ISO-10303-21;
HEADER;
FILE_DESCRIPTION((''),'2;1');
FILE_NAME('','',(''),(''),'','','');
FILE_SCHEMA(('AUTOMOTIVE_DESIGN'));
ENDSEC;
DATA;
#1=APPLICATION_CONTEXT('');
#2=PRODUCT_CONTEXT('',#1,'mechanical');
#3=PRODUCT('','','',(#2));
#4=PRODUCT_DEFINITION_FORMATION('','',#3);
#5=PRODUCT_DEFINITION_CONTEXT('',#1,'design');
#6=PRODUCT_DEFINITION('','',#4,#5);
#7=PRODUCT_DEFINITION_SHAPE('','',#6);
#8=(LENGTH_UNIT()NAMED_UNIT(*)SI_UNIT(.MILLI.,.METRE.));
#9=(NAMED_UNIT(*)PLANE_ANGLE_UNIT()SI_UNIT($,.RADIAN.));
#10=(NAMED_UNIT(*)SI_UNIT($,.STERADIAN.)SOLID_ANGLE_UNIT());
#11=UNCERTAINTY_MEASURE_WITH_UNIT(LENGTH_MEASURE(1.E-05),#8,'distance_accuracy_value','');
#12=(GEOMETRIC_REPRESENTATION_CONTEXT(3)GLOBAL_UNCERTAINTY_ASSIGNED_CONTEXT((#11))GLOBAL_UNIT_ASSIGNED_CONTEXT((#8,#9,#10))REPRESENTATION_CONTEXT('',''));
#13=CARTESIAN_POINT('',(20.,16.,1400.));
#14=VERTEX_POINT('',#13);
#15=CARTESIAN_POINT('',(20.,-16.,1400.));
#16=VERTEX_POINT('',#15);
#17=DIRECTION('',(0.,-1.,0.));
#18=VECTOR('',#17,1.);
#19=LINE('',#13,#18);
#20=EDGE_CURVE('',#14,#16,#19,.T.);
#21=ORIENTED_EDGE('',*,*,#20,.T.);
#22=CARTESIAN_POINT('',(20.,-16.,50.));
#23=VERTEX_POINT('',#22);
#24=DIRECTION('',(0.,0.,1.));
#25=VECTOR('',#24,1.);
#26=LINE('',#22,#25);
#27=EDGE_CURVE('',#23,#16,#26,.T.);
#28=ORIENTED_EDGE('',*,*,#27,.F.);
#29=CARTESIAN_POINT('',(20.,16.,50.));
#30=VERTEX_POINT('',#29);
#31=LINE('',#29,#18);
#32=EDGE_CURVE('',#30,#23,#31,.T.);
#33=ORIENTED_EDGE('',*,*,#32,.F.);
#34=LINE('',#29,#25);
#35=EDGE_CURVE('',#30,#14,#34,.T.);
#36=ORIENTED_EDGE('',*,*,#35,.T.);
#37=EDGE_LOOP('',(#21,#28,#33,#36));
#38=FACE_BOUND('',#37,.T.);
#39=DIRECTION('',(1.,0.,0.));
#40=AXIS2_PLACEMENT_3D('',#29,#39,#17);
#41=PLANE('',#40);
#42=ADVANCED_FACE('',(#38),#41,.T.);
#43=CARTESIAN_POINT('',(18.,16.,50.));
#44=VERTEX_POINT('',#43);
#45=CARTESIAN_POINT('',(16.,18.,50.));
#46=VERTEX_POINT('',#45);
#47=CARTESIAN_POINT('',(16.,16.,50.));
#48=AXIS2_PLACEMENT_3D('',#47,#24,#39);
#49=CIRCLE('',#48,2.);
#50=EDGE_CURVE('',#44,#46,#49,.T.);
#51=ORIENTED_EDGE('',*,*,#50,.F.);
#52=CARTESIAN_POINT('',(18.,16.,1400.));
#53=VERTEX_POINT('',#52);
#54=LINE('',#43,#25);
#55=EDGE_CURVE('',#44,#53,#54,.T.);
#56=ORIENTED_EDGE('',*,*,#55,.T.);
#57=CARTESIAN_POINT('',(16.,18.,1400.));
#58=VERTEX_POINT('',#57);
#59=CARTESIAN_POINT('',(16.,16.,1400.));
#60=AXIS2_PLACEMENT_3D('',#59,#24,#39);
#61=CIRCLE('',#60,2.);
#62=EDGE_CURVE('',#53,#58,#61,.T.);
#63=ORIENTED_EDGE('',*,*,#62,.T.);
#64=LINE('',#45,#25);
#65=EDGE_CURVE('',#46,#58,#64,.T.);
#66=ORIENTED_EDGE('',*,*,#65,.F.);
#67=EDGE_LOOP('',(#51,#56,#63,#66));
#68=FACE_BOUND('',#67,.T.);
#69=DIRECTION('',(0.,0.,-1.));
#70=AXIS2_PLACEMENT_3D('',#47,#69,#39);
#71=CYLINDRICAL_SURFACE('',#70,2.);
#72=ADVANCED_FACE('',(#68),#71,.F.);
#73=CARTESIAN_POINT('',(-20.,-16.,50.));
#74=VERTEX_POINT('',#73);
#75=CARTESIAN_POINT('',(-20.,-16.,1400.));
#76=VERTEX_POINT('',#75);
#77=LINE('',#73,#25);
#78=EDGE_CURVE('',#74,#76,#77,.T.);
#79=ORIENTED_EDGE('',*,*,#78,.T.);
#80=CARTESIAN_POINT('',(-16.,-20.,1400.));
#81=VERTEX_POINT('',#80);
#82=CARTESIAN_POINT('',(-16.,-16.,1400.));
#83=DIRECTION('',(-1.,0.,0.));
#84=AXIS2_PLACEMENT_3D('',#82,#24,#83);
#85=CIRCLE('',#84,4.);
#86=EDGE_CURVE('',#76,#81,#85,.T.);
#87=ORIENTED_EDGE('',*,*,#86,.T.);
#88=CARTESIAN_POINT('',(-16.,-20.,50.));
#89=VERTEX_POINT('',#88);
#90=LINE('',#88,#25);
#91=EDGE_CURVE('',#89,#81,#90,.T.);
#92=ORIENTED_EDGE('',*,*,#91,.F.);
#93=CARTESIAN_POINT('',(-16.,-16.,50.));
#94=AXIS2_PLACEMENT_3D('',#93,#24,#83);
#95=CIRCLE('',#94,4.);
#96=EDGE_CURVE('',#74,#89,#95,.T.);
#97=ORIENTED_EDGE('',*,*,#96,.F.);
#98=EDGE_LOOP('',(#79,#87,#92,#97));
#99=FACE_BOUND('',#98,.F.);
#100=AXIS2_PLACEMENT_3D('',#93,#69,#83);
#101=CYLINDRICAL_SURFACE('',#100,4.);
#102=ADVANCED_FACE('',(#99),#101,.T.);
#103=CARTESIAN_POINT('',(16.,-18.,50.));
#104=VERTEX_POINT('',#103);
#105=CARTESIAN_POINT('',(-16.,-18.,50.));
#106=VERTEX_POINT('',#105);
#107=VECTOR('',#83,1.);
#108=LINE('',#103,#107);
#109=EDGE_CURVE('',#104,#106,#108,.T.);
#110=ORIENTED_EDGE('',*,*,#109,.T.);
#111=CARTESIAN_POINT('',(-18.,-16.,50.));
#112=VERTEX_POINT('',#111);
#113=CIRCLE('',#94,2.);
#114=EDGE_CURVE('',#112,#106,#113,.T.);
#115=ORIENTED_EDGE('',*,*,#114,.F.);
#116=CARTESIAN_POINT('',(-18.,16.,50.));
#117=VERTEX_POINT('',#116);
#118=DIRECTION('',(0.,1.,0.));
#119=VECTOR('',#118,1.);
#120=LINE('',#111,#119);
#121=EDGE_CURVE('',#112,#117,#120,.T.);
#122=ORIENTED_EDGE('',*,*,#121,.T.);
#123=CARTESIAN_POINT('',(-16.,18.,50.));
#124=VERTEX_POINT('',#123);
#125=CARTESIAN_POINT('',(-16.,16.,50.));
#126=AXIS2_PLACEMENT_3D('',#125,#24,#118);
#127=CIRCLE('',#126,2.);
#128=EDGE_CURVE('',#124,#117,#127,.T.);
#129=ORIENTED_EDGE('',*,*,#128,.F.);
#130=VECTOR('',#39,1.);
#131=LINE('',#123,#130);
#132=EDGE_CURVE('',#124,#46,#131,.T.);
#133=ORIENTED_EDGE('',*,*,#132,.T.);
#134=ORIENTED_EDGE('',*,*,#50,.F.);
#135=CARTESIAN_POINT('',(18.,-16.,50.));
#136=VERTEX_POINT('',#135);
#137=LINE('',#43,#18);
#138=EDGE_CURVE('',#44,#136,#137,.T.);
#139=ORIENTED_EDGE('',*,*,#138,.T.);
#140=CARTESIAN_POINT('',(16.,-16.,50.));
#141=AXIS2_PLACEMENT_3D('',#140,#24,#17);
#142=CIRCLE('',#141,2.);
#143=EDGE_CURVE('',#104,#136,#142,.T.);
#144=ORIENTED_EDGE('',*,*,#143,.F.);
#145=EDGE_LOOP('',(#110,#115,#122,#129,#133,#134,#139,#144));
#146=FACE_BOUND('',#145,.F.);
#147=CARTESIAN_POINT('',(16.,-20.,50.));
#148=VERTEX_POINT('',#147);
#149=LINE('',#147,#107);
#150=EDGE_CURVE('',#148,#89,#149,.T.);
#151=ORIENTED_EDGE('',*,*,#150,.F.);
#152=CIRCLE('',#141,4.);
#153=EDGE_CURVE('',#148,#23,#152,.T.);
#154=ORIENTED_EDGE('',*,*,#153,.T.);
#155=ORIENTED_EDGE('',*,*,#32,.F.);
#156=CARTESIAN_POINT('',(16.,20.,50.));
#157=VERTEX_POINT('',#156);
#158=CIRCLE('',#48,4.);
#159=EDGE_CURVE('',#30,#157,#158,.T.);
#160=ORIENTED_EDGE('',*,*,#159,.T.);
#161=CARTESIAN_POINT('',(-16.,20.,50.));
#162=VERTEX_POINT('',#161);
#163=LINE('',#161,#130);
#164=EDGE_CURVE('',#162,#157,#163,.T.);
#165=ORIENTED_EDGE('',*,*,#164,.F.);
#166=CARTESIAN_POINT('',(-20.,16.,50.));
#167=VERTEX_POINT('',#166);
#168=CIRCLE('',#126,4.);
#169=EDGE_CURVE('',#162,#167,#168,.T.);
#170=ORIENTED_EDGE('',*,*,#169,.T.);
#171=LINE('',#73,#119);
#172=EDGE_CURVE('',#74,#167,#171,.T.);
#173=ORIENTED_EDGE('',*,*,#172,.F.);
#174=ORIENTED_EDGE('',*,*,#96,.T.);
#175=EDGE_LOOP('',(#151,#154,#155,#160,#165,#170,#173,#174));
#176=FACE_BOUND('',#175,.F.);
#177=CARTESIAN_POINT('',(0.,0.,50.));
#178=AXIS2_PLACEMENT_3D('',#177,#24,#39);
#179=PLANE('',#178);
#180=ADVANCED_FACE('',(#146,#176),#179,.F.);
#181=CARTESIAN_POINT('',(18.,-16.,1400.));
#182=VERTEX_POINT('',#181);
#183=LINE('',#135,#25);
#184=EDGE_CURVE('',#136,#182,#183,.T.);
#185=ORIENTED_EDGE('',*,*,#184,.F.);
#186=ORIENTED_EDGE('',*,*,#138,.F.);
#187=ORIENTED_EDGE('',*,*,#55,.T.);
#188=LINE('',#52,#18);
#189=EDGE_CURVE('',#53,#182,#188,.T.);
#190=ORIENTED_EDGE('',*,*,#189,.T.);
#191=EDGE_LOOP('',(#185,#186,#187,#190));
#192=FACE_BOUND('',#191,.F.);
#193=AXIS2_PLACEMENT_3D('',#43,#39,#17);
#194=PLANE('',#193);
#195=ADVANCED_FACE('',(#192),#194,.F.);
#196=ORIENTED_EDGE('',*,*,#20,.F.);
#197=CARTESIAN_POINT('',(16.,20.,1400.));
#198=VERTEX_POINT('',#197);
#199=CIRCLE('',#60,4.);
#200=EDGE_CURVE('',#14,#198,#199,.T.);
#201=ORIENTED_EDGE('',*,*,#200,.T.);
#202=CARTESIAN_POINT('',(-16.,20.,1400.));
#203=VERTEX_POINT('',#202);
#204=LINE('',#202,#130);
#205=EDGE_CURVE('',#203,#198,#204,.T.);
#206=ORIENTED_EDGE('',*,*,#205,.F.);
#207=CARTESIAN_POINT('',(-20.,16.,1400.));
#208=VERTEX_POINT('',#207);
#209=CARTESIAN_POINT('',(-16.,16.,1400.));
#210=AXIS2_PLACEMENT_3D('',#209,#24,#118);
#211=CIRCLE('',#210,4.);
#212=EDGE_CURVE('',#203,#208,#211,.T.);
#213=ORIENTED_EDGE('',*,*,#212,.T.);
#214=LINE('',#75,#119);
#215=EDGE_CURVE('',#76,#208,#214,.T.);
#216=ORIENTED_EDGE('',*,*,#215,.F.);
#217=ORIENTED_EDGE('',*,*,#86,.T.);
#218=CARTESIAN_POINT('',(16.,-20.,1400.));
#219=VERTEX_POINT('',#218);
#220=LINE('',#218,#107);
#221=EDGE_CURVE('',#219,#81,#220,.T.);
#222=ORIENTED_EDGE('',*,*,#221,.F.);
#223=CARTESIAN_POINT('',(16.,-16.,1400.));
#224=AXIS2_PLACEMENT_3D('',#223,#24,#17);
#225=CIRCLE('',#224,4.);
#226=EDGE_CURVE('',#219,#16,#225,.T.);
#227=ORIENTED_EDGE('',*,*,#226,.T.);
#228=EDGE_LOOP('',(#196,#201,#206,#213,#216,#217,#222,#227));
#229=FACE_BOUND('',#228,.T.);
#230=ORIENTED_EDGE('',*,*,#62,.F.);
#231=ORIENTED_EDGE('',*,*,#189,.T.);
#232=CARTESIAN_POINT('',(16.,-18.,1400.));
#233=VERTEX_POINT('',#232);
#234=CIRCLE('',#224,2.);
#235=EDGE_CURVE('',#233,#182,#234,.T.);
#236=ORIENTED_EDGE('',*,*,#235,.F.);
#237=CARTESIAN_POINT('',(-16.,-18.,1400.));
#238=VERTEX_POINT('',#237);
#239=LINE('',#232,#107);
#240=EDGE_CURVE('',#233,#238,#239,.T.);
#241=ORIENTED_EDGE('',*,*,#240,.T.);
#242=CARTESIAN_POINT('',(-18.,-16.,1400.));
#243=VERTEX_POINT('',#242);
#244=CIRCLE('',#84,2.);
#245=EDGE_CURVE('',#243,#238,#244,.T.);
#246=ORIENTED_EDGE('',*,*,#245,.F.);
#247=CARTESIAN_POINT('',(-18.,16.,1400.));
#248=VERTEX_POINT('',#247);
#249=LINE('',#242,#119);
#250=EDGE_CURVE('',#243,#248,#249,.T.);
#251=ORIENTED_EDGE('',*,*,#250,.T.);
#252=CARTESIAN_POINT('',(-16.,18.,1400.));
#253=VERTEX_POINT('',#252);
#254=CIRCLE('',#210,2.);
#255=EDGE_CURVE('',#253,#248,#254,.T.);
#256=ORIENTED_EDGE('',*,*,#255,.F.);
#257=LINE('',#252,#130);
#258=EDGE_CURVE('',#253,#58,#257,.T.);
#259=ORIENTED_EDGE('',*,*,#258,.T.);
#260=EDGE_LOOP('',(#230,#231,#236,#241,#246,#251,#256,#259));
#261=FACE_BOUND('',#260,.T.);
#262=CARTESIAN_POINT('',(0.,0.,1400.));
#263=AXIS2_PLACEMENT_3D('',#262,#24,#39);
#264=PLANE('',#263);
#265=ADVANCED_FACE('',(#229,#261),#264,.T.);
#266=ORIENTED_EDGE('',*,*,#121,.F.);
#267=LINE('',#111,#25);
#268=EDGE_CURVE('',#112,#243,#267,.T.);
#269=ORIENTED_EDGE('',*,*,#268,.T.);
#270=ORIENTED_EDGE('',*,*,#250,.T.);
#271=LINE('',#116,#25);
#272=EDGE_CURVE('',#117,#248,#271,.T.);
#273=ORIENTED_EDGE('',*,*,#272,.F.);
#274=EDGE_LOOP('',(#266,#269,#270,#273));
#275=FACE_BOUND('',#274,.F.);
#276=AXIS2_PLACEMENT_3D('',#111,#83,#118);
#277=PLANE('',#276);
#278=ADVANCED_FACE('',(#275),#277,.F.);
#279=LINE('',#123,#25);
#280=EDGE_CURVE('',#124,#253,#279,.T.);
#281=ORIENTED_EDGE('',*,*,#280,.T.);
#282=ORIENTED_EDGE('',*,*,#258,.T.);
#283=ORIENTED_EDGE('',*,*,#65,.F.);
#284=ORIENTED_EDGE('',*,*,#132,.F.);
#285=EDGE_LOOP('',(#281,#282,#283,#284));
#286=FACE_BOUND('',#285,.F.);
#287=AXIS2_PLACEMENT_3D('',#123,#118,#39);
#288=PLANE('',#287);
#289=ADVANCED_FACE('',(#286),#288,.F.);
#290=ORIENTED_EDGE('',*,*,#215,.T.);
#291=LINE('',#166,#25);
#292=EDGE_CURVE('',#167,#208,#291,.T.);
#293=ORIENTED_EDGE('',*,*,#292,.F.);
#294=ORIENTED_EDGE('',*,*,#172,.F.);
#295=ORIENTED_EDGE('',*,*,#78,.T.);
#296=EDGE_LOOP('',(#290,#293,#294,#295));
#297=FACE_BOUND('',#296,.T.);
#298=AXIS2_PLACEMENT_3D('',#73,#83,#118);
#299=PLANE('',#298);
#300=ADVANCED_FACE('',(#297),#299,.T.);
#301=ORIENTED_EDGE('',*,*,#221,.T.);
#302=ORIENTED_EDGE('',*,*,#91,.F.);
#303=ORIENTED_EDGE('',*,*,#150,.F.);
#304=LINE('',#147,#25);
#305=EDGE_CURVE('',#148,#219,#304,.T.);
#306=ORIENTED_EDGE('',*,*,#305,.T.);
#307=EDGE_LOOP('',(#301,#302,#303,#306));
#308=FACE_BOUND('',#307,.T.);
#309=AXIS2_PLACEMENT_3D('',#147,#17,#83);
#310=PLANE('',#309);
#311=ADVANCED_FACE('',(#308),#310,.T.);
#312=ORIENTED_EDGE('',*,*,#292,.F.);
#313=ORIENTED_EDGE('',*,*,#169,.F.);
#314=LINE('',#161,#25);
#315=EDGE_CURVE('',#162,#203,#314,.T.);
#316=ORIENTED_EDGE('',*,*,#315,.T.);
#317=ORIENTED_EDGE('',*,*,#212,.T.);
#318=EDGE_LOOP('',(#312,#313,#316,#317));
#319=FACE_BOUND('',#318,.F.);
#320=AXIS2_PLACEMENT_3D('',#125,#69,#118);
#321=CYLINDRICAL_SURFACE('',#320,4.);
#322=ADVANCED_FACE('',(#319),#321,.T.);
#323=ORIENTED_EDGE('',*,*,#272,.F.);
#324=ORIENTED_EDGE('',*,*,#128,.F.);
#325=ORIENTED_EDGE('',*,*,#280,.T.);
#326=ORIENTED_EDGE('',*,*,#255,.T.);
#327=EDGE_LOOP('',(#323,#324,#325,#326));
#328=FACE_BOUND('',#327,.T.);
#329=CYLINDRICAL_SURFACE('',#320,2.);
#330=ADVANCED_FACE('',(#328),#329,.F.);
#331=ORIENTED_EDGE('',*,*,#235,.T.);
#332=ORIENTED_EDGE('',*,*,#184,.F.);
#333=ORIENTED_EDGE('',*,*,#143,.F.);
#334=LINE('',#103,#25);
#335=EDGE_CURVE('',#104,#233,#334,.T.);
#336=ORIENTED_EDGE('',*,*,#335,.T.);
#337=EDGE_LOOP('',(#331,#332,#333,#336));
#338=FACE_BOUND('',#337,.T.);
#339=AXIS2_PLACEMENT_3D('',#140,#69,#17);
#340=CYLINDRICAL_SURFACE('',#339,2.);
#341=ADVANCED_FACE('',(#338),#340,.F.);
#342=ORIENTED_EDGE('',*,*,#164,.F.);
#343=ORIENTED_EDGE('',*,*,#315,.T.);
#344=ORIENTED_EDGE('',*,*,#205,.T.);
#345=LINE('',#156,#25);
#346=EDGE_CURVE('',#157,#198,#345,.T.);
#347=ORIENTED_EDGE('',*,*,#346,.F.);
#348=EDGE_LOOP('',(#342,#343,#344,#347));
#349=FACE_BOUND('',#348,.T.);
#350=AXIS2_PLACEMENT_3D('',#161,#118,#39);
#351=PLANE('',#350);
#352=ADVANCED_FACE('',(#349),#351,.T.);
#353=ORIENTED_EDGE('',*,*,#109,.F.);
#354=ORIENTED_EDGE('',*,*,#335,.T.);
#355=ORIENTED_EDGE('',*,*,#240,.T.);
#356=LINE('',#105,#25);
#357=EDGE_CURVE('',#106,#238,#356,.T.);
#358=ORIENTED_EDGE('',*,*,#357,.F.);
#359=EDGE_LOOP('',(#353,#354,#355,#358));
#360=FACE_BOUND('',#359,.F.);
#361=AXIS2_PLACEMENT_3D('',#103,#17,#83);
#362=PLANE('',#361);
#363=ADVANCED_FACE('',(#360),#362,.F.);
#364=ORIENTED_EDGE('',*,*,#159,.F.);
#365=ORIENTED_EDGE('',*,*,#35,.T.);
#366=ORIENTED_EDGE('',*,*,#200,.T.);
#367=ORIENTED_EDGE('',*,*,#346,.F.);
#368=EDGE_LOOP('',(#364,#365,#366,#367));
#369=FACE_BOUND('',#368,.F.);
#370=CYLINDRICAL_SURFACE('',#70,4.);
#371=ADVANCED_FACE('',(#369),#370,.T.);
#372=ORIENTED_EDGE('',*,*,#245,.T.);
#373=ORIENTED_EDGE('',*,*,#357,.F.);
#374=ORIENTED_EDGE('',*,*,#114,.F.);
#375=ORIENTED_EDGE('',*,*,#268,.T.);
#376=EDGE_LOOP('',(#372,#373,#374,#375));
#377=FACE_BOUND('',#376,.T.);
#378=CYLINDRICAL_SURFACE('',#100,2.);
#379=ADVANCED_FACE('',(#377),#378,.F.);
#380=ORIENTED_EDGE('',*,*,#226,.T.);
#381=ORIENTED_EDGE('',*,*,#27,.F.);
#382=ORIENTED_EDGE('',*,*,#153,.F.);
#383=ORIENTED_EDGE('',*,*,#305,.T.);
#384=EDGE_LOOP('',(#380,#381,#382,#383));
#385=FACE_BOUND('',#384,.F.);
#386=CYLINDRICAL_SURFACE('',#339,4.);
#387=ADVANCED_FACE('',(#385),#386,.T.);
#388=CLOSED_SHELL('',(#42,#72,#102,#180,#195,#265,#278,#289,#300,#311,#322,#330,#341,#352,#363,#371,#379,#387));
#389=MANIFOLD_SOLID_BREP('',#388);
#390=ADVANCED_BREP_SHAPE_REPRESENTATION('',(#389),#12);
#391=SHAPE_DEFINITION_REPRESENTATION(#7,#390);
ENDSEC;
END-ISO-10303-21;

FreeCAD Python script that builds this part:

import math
import FreeCAD as App
import Part
import Sketcher
from FreeCAD import Vector
Q = App.Units.Quantity

doc = App.newDocument("Part")
body = doc.addObject("PartDesign::Body", "Body")

sketch1 = doc.addObject("Sketcher::SketchObject", "Sketch")
body.addObject(sketch1)
sketch1.AttachmentSupport = (doc.XY_Plane, [""])
sketch1.MapMode = "FlatFace"
sketch1.AttachmentOffset = App.Placement(Vector(0, 0, 50), App.Rotation())
sketch1.addGeometry(Part.LineSegment(Vector(-20, 16, 0), Vector(-20, -16, 0)), False)
sketch1.addGeometry(Part.ArcOfCircle(Part.Circle(Vector(-16, -16, 0), Vector(0, 0, 1), 4), math.radians(180), math.radians(270)), False)
sketch1.addGeometry(Part.LineSegment(Vector(-16, -20, 0), Vector(16, -20, 0)), False)
sketch1.addGeometry(Part.ArcOfCircle(Part.Circle(Vector(16, -16, 0), Vector(0, 0, 1), 4), math.radians(-90), math.radians(0)), False)
sketch1.addGeometry(Part.LineSegment(Vector(20, -16, 0), Vector(20, 16, 0)), False)
sketch1.addGeometry(Part.ArcOfCircle(Part.Circle(Vector(16, 16, 0), Vector(0, 0, 1), 4), math.radians(0), math.radians(90)), False)
sketch1.addGeometry(Part.LineSegment(Vector(16, 20, 0), Vector(-16, 20, 0)), False)
sketch1.addGeometry(Part.ArcOfCircle(Part.Circle(Vector(-16, 16, 0), Vector(0, 0, 1), 4), math.radians(90), math.radians(180)), False)
sketch1.addGeometry(Part.ArcOfCircle(Part.Circle(Vector(-16, 16, 0), Vector(0, 0, 1), 2), math.radians(90), math.radians(180)), False)
sketch1.addGeometry(Part.LineSegment(Vector(-16, 18, 0), Vector(16, 18, 0)), False)
sketch1.addGeometry(Part.ArcOfCircle(Part.Circle(Vector(16, 16, 0), Vector(0, 0, 1), 2), math.radians(0), math.radians(90)), False)
sketch1.addGeometry(Part.LineSegment(Vector(18, 16, 0), Vector(18, -16, 0)), False)
sketch1.addGeometry(Part.ArcOfCircle(Part.Circle(Vector(16, -16, 0), Vector(0, 0, 1), 2), math.radians(-90), math.radians(0)), False)
sketch1.addGeometry(Part.LineSegment(Vector(16, -18, 0), Vector(-16, -18, 0)), False)
sketch1.addGeometry(Part.ArcOfCircle(Part.Circle(Vector(-16, -16, 0), Vector(0, 0, 1), 2), math.radians(180), math.radians(270)), False)
sketch1.addGeometry(Part.LineSegment(Vector(-18, -16, 0), Vector(-18, 16, 0)), False)
sketch1.addConstraint(Sketcher.Constraint("Tangent", 0, 2, 1, 1))
sketch1.addConstraint(Sketcher.Constraint("Tangent", 1, 2, 2, 1))
sketch1.addConstraint(Sketcher.Constraint("Tangent", 2, 2, 3, 1))
sketch1.addConstraint(Sketcher.Constraint("Tangent", 3, 2, 4, 1))
sketch1.addConstraint(Sketcher.Constraint("Tangent", 4, 2, 5, 1))
sketch1.addConstraint(Sketcher.Constraint("Tangent", 5, 2, 6, 1))
sketch1.addConstraint(Sketcher.Constraint("Tangent", 6, 2, 7, 1))
sketch1.addConstraint(Sketcher.Constraint("Tangent", 7, 2, 0, 1))
sketch1.addConstraint(Sketcher.Constraint("Tangent", 8, 1, 9, 1))
sketch1.addConstraint(Sketcher.Constraint("Tangent", 9, 2, 10, 2))
sketch1.addConstraint(Sketcher.Constraint("Tangent", 10, 1, 11, 1))
sketch1.addConstraint(Sketcher.Constraint("Tangent", 11, 2, 12, 2))
sketch1.addConstraint(Sketcher.Constraint("Tangent", 12, 1, 13, 1))
sketch1.addConstraint(Sketcher.Constraint("Tangent", 13, 2, 14, 2))
sketch1.addConstraint(Sketcher.Constraint("Tangent", 14, 1, 15, 1))
sketch1.addConstraint(Sketcher.Constraint("Tangent", 15, 2, 8, 2))
sketch1.addConstraint(Sketcher.Constraint("Vertical", 0))
sketch1.addConstraint(Sketcher.Constraint("Horizontal", 2))
sketch1.addConstraint(Sketcher.Constraint("Vertical", 4))
sketch1.addConstraint(Sketcher.Constraint("Horizontal", 6))
sketch1.addConstraint(Sketcher.Constraint("Horizontal", 9))
sketch1.addConstraint(Sketcher.Constraint("Vertical", 11))
sketch1.addConstraint(Sketcher.Constraint("Horizontal", 13))
sketch1.addConstraint(Sketcher.Constraint("Vertical", 15))
sketch1.addConstraint(Sketcher.Constraint("Coincident", 8, 3, 7, 3))
sketch1.addConstraint(Sketcher.Constraint("Coincident", 10, 3, 5, 3))
sketch1.addConstraint(Sketcher.Constraint("Coincident", 12, 3, 3, 3))
sketch1.addConstraint(Sketcher.Constraint("Equal", 1, 3))
sketch1.addConstraint(Sketcher.Constraint("Equal", 3, 5))
sketch1.addConstraint(Sketcher.Constraint("Equal", 5, 7))
sketch1.addConstraint(Sketcher.Constraint("Equal", 12, 14))
sketch1.addConstraint(Sketcher.Constraint("Symmetric", 1, 3, 5, 3, -1, 1))
sketch1.addConstraint(Sketcher.Constraint("Equal", 13, 0))
sketch1.addConstraint(Sketcher.Constraint("Radius", 1, Q("4 mm")))
sketch1.addConstraint(Sketcher.Constraint("Radius", 8, Q("2 mm")))
sketch1.addConstraint(Sketcher.Constraint("DistanceX", 0, 2, -1, 1, Q("20 mm")))
pad1 = doc.addObject("PartDesign::Pad", "Pad")
body.addObject(pad1)
pad1.Profile = sketch1
pad1.Length = 1350

doc.recompute()
